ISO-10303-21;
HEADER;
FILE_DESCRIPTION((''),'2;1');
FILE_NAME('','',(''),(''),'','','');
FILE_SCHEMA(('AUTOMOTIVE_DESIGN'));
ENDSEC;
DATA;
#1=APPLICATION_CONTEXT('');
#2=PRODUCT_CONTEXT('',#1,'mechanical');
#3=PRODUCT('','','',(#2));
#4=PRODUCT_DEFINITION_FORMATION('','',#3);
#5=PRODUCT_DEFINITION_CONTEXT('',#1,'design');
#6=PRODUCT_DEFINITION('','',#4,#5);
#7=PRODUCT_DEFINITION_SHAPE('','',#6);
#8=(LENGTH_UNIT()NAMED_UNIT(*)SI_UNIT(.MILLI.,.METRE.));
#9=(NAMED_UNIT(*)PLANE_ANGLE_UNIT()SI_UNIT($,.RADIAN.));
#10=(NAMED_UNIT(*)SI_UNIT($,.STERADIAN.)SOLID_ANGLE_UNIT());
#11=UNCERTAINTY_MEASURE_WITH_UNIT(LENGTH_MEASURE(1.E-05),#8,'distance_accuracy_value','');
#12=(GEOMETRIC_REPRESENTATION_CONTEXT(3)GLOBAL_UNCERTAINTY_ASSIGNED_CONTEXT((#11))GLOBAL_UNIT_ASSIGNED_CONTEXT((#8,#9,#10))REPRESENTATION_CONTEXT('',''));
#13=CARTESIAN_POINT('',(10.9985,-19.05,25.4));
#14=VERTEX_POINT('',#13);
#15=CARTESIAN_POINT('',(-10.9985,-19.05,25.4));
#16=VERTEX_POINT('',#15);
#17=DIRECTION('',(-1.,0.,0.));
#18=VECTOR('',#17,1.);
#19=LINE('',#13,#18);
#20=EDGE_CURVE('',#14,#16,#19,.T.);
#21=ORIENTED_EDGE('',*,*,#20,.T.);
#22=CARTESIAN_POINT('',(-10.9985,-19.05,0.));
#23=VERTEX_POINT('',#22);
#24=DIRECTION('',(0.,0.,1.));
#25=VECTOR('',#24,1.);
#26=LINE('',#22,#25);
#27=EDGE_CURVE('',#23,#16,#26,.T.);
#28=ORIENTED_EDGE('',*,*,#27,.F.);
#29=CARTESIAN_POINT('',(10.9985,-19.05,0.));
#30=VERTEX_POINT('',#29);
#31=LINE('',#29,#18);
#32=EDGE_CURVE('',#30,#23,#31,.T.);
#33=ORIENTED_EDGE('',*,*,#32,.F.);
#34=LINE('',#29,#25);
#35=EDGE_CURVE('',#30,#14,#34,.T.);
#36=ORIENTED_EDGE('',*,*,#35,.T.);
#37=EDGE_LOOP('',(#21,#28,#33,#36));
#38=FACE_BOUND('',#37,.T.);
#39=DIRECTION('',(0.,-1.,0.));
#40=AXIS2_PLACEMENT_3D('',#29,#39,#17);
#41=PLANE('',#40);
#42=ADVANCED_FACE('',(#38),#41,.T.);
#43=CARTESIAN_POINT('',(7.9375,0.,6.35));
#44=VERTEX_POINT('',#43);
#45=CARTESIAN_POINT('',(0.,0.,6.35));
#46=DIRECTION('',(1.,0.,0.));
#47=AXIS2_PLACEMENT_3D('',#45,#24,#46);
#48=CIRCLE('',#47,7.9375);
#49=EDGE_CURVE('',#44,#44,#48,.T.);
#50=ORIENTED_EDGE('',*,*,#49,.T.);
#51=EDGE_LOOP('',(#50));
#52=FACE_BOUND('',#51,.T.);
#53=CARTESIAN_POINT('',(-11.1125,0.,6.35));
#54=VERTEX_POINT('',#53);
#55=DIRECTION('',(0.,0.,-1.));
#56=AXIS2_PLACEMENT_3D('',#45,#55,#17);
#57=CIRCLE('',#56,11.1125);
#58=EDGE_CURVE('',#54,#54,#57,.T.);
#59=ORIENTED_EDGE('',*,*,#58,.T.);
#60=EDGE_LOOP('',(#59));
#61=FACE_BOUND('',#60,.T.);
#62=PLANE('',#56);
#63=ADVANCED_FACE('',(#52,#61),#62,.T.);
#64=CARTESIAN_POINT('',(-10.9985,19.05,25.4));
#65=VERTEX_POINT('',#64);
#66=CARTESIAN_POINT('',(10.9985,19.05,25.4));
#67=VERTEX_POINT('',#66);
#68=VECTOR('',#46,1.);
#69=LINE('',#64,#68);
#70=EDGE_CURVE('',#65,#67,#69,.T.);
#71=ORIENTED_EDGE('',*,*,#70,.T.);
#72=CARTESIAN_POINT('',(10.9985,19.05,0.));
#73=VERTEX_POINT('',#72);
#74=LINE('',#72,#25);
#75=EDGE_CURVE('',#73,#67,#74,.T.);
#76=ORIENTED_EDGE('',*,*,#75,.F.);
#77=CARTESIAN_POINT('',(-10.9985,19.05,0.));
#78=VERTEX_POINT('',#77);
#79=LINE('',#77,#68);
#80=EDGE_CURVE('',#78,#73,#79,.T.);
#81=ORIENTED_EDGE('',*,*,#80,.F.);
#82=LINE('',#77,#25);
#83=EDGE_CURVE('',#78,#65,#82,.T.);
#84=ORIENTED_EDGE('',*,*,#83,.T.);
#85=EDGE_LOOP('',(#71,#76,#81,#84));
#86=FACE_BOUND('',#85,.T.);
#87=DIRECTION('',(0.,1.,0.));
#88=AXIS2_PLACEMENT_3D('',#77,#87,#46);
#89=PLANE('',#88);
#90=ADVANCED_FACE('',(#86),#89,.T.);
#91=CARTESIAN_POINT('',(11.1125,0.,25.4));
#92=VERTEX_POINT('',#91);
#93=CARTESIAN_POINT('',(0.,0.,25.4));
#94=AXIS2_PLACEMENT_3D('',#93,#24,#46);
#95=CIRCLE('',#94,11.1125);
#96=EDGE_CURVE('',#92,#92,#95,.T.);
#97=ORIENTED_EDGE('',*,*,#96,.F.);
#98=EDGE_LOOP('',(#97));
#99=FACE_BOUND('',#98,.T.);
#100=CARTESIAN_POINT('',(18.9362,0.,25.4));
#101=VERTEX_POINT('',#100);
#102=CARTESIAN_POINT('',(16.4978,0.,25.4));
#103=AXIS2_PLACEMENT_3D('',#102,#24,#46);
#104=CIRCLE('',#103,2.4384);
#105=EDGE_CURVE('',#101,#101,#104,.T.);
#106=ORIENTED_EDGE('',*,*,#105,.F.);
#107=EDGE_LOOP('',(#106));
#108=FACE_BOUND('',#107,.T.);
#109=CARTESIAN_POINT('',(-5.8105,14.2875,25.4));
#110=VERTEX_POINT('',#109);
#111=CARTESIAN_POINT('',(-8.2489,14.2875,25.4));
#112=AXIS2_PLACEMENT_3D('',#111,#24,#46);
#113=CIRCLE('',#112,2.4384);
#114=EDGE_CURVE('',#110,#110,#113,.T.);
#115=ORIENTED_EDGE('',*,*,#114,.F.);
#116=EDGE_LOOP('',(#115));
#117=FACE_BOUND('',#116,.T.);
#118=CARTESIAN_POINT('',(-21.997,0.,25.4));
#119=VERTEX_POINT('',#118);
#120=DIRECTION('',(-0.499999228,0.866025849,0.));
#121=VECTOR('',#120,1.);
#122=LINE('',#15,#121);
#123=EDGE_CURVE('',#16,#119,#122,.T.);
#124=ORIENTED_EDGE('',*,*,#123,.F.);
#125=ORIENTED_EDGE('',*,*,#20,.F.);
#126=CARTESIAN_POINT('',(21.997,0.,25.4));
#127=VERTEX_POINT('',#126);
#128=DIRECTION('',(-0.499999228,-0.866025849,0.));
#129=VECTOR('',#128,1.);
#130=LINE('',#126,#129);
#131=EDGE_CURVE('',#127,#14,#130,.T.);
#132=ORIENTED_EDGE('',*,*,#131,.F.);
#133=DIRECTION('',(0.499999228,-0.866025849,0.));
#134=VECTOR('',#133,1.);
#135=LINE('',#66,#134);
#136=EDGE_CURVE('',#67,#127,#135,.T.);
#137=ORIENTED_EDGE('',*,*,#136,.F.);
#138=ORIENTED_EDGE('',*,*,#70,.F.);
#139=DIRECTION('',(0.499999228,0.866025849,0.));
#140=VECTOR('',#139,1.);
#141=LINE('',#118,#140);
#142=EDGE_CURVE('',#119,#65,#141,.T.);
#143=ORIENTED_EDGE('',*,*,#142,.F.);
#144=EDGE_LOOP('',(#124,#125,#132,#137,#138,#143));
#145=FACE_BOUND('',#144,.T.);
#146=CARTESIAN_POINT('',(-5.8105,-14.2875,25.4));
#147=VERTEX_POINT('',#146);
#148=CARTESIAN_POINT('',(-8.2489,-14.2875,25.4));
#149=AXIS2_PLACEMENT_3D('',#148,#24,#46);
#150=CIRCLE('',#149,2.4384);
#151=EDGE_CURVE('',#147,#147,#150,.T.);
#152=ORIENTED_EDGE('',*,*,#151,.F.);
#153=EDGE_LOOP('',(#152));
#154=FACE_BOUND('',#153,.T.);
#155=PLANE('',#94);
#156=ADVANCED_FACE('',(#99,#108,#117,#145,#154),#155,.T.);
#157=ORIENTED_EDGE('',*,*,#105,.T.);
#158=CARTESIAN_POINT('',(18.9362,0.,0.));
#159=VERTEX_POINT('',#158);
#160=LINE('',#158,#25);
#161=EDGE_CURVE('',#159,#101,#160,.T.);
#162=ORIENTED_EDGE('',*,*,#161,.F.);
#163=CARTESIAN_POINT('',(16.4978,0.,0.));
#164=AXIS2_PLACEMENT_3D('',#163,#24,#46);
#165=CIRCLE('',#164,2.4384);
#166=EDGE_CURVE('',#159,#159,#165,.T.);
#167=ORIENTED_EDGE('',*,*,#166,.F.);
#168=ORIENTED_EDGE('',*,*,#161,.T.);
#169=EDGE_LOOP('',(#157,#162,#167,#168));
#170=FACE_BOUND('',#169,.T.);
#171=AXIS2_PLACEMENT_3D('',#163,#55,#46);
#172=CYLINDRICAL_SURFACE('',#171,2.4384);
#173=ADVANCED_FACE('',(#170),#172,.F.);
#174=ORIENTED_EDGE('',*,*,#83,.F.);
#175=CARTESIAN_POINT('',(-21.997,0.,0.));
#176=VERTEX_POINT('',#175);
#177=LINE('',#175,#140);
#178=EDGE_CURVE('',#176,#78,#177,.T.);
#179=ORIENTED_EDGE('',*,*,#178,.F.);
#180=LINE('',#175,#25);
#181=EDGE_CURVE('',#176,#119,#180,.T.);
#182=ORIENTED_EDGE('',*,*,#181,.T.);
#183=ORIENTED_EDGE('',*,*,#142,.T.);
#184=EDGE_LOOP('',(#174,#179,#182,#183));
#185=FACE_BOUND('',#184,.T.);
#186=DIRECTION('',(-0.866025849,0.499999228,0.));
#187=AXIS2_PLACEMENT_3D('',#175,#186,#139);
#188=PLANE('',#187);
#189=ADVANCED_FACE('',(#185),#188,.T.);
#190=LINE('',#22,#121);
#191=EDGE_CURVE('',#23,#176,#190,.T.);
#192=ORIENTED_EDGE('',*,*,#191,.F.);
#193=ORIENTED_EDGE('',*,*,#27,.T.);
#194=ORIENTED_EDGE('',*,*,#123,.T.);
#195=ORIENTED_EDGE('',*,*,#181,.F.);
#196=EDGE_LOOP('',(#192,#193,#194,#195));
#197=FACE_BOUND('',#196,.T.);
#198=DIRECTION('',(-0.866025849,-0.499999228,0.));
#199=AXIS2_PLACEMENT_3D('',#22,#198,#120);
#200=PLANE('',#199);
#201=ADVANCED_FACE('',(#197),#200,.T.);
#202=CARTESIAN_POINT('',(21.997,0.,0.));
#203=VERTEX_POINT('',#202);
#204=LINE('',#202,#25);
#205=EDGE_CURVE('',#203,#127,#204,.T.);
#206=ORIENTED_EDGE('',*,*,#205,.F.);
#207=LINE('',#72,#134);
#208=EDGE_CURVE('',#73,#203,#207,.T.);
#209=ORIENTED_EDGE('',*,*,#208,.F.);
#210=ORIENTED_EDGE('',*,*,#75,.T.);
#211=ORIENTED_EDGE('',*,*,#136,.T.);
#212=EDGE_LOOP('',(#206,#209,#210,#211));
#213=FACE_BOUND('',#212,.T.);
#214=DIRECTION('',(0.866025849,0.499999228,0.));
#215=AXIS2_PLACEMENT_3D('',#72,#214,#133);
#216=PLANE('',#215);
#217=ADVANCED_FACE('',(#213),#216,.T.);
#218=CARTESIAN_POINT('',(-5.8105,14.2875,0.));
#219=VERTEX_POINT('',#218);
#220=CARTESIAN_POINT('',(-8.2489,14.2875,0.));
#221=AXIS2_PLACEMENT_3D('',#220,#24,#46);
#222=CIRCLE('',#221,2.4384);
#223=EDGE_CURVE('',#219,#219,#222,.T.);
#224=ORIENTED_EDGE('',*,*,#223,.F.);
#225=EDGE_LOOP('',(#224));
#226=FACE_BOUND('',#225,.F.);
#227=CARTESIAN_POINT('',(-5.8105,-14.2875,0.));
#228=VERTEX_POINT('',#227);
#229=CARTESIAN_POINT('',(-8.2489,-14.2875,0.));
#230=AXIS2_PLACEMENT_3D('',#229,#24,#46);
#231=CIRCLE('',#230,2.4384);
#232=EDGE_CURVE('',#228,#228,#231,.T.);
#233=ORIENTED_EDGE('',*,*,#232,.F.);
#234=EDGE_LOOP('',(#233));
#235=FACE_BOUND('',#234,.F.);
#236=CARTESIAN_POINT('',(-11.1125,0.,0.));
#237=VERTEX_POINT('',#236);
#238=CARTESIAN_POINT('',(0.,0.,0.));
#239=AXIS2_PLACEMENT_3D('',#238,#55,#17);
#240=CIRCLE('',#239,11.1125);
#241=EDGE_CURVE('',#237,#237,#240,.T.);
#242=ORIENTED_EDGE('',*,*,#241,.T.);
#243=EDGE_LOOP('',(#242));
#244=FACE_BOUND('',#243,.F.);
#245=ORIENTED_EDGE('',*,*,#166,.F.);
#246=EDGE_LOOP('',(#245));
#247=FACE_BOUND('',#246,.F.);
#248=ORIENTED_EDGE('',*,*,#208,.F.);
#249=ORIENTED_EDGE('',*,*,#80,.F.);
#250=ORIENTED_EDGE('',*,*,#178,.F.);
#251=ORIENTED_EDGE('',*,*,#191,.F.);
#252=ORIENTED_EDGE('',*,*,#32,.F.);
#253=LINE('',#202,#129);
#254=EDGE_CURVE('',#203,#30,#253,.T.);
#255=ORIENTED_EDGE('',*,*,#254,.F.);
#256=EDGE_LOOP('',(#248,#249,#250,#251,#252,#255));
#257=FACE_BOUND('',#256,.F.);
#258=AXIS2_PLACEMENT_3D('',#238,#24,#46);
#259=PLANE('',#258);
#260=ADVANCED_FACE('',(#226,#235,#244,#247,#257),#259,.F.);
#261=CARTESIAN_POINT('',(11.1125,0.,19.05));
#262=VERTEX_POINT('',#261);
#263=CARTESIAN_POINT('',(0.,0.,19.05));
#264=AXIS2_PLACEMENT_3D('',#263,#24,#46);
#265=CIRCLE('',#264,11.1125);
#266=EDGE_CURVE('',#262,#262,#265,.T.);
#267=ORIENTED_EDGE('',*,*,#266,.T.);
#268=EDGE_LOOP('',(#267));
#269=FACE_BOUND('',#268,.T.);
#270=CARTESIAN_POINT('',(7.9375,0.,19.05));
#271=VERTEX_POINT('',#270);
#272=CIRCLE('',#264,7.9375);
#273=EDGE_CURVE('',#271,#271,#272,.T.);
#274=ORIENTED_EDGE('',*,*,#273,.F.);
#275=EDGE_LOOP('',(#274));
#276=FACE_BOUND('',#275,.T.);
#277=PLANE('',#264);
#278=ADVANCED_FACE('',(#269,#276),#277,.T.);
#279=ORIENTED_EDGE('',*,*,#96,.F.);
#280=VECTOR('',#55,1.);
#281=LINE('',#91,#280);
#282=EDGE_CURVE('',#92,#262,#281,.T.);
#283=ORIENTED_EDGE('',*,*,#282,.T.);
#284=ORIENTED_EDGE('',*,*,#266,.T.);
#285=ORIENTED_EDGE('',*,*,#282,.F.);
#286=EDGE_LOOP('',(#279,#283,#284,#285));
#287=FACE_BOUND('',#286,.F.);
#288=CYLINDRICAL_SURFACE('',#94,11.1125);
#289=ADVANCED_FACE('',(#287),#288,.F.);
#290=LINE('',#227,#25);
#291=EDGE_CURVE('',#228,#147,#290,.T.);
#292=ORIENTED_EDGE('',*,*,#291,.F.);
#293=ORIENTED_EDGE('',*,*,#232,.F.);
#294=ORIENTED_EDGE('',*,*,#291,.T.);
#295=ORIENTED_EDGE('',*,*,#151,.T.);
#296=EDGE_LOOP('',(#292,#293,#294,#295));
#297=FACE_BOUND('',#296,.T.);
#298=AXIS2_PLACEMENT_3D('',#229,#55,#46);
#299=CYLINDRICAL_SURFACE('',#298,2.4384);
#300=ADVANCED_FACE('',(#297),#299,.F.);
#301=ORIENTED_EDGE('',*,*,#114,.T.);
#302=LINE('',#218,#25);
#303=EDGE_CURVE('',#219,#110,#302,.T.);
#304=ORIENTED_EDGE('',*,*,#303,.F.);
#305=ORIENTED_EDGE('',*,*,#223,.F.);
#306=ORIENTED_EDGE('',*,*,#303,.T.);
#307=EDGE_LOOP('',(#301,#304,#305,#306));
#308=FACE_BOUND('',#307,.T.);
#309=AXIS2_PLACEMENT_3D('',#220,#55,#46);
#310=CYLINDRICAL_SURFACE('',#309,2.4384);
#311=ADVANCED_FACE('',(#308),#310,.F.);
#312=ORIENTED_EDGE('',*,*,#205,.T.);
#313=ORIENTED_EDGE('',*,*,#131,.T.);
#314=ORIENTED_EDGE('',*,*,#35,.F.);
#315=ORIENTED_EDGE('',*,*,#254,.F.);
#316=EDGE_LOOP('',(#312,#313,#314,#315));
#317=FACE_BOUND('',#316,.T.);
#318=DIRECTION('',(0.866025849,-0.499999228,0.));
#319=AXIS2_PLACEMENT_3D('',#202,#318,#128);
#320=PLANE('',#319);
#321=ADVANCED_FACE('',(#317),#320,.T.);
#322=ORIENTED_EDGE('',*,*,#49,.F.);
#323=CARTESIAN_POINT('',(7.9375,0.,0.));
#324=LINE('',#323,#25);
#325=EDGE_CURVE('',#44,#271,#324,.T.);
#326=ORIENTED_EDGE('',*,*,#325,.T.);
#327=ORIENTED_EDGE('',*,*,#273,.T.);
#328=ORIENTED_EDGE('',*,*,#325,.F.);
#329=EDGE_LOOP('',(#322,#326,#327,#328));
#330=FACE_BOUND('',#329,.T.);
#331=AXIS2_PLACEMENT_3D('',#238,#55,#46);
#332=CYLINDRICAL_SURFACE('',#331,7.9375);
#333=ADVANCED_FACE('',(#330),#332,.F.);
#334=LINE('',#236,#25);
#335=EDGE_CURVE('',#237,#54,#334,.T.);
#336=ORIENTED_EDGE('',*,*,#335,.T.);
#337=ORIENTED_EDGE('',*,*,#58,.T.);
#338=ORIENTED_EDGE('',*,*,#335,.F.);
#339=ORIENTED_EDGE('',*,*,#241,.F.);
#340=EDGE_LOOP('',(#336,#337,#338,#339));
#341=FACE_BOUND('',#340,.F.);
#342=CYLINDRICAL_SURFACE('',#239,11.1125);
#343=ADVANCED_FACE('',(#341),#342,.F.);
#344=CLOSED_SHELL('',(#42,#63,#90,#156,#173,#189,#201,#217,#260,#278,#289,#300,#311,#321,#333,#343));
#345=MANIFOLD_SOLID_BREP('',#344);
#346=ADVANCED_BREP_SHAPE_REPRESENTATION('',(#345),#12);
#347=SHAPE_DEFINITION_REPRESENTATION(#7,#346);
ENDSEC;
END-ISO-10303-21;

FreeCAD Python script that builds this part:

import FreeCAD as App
import Part
import Sketcher
from FreeCAD import Vector
Q = App.Units.Quantity


def add_polygon(sketch, points):
    """Adds a closed chain of lines whose ends are joined by coincident constraints."""
    first, n = sketch.GeometryCount, len(points)
    for a, b in zip(points, points[1:] + points[:1]):
        sketch.addGeometry(Part.LineSegment(App.Vector(*a, 0), App.Vector(*b, 0)), False)
    for i in range(n):
        sketch.addConstraint(Sketcher.Constraint("Coincident", first + i, 2, first + (i + 1) % n, 1))

doc = App.newDocument("Part")
params = doc.addObject("Spreadsheet::Sheet", "Params")
for row, (alias, value) in enumerate([
    ("sketch1_diameter", "0.192 in"),
    ("sketch1_diameter2", "0.625 in"),
    ("pad1_length", "1 in"),
    ("sketch2_diameter", "0.875 in"),
    ("sketch2_diameter2", "0.625 in"),
    ("pocket1_length", "0.25 in"),
    ("sketch3_diameter", "0.875 in"),
    ("sketch3_diameter2", "0.625 in"),
    ("pocket2_length", "0.25 in"),
], start=1):
    params.set(f"A{row}", alias)
    params.set(f"B{row}", "=" + value)
    params.setAlias(f"B{row}", alias)

body = doc.addObject("PartDesign::Body", "Body")

# Sketch on XY plane
sketch1 = doc.addObject("Sketcher::SketchObject", "Sketch")
body.addObject(sketch1)
sketch1.AttachmentSupport = (doc.XY_Plane, [""])
sketch1.MapMode = "FlatFace"
add_polygon(sketch1, [(11, -19.1), (22, 0), (11, 19.1), (-11, 19.1), (-22, 0), (-11, -19.1)])  # lines 0-5
sketch1.addGeometry(Part.Circle(Vector(-8.2, -14.3, 0), Vector(0, 0, 1), 2.4), False)  # 6
sketch1.addGeometry(Part.Circle(Vector(-8.2, 14.3, 0), Vector(0, 0, 1), 2.4), False)  # 7
sketch1.addGeometry(Part.Circle(Vector(0, 0, 0), Vector(0, 0, 1), 7.9), False)  # 8
sketch1.addGeometry(Part.Circle(Vector(16.5, 0, 0), Vector(0, 0, 1), 2.4), False)  # 9
sketch1.addConstraint([
    Sketcher.Constraint("Horizontal", 2),
    Sketcher.Constraint("Horizontal", 5),
    Sketcher.Constraint("Coincident", 8, 3, -1, 1),
    Sketcher.Constraint("Equal", 6, 7),
    Sketcher.Constraint("Equal", 7, 9),
    Sketcher.Constraint("Symmetric", 0, 2, 3, 2, -1, 1),
    Sketcher.Constraint("Symmetric", 1, 2, 4, 2, -1, 1),
    Sketcher.Constraint("Symmetric", 6, 3, 7, 3, -1),
    Sketcher.Constraint("PointOnObject", 9, 3, -1),
    Sketcher.Constraint("PointOnObject", 0, 2, -1),
    Sketcher.Constraint("Parallel", 0, 3),
    Sketcher.Constraint("Vertical", 2, 2, 4, 2),
    Sketcher.Constraint("Diameter", 6, Q("0.192 in")),
    Sketcher.Constraint("Diameter", 8, Q("0.625 in")),
    Sketcher.Constraint("Angle", 0, Q("60 deg")),
    Sketcher.Constraint("DistanceY", 6, 3, 7, 3, Q("1.125 in")),
    Sketcher.Constraint("DistanceY", -1, 1, 1, 2, Q("0.75 in")),
    Sketcher.Constraint("DistanceX", -1, 1, 1, 2, Q("0.433 in")),
    Sketcher.Constraint("DistanceX", 9, 3, 0, 2, Q("0.2165 in")),
    Sketcher.Constraint("DistanceX", 6, 3, -1, 1, Q("8.249 mm")),
])
sketch1.setExpression("Constraints[18]", "Params.sketch1_diameter")
sketch1.setExpression("Constraints[19]", "Params.sketch1_diameter2")
pad1 = doc.addObject("PartDesign::Pad", "Pad")
body.addObject(pad1)
pad1.Profile = sketch1
pad1.setExpression("Length", "Params.pad1_length")

# Sketch on XY plane
sketch2 = doc.addObject("Sketcher::SketchObject", "Sketch001")
body.addObject(sketch2)
sketch2.AttachmentSupport = (doc.XY_Plane, [""])
sketch2.MapMode = "FlatFace"
sketch2.AttachmentOffset = App.Placement(Vector(0, 0, 1 * 25.4), App.Rotation())
sketch2.addGeometry([
    Part.Circle(Vector(0, 0, 0), Vector(0, 0, 1), 11),
    Part.Circle(Vector(0, 0, 0), Vector(0, 0, 1), 8),
], False)
sketch2.addConstraint([
    Sketcher.Constraint("Coincident", 0, 3, -1, 1),
    Sketcher.Constraint("Coincident", 1, 3, -1, 1),
    Sketcher.Constraint("Diameter", 0, Q("0.875 in")),
    Sketcher.Constraint("Diameter", 1, Q("0.625 in")),
])
sketch2.setExpression("Constraints[2]", "Params.sketch2_diameter")
sketch2.setExpression("Constraints[3]", "Params.sketch2_diameter2")
pocket1 = doc.addObject("PartDesign::Pocket", "Pocket")
body.addObject(pocket1)
pocket1.Profile = sketch2
pocket1.setExpression("Length", "Params.pocket1_length")

# Sketch on XY plane
sketch3 = doc.addObject("Sketcher::SketchObject", "Sketch002")
body.addObject(sketch3)
sketch3.AttachmentSupport = (doc.XY_Plane, [""])
sketch3.MapMode = "FlatFace"
sketch3.addGeometry([
    Part.Circle(Vector(0, 0, 0), Vector(0, 0, 1), 11),
    Part.Circle(Vector(0, 0, 0), Vector(0, 0, 1), 8),
], False)
sketch3.addConstraint([
    Sketcher.Constraint("Coincident", 0, 3, -1, 1),
    Sketcher.Constraint("Coincident", 1, 3, -1, 1),
    Sketcher.Constraint("Diameter", 0, Q("0.875 in")),
    Sketcher.Constraint("Diameter", 1, Q("0.625 in")),
])
sketch3.setExpression("Constraints[2]", "Params.sketch3_diameter")
sketch3.setExpression("Constraints[3]", "Params.sketch3_diameter2")
pocket2 = doc.addObject("PartDesign::Pocket", "Pocket001")
body.addObject(pocket2)
pocket2.Profile = sketch3
pocket2.setExpression("Length", "Params.pocket2_length")
pocket2.Reversed = True

doc.recompute()
